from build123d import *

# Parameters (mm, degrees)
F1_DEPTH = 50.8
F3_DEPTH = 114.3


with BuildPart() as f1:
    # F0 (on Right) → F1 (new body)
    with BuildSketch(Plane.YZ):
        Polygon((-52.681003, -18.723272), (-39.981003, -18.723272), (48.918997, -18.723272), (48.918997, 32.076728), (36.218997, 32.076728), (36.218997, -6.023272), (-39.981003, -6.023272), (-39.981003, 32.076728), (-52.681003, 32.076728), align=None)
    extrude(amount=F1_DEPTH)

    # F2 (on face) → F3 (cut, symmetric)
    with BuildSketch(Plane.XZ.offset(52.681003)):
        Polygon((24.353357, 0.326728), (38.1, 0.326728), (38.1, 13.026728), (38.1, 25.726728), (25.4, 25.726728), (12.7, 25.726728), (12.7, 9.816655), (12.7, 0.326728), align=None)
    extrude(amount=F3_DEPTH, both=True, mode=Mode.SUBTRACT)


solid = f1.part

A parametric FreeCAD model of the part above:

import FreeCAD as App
import Part
import Sketcher
Q = App.Units.Quantity

doc = App.newDocument("Part")
body = doc.addObject("PartDesign::Body", "Body")

# Sketch on YZ plane
sketch1 = doc.addObject("Sketcher::SketchObject", "Sketch")
body.addObject(sketch1)
sketch1.AttachmentSupport = (doc.YZ_Plane, [""])
sketch1.MapMode = "FlatFace"
sketch1.addGeometry(Part.LineSegment(App.Vector(-53, -19, 0), App.Vector(49, -19, 0)), False)
sketch1.addGeometry(Part.LineSegment(App.Vector(49, -19, 0), App.Vector(49, 32, 0)), False)
sketch1.addGeometry(Part.LineSegment(App.Vector(49, 32, 0), App.Vector(36, 32, 0)), False)
sketch1.addGeometry(Part.LineSegment(App.Vector(36, 32, 0), App.Vector(36, -6, 0)), False)
sketch1.addGeometry(Part.LineSegment(App.Vector(36, -6, 0), App.Vector(-40, -6, 0)), False)
sketch1.addGeometry(Part.LineSegment(App.Vector(-40, -6, 0), App.Vector(-40, 32, 0)), False)
sketch1.addGeometry(Part.LineSegment(App.Vector(-40, 32, 0), App.Vector(-53, 32, 0)), False)
sketch1.addGeometry(Part.LineSegment(App.Vector(-53, 32, 0), App.Vector(-53, -19, 0)), False)
sketch1.addConstraint(Sketcher.Constraint("Coincident", 0, 2, 1, 1))
sketch1.addConstraint(Sketcher.Constraint("Coincident", 1, 2, 2, 1))
sketch1.addConstraint(Sketcher.Constraint("Coincident", 2, 2, 3, 1))
sketch1.addConstraint(Sketcher.Constraint("Coincident", 3, 2, 4, 1))
sketch1.addConstraint(Sketcher.Constraint("Coincident", 4, 2, 5, 1))
sketch1.addConstraint(Sketcher.Constraint("Coincident", 5, 2, 6, 1))
sketch1.addConstraint(Sketcher.Constraint("Coincident", 6, 2, 7, 1))
sketch1.addConstraint(Sketcher.Constraint("Coincident", 7, 2, 0, 1))
sketch1.addConstraint(Sketcher.Constraint("Horizontal", 0))
sketch1.addConstraint(Sketcher.Constraint("Vertical", 1))
sketch1.addConstraint(Sketcher.Constraint("Horizontal", 2))
sketch1.addConstraint(Sketcher.Constraint("Vertical", 3))
sketch1.addConstraint(Sketcher.Constraint("Horizontal", 4))
sketch1.addConstraint(Sketcher.Constraint("Vertical", 5))
sketch1.addConstraint(Sketcher.Constraint("Horizontal", 6))
sketch1.addConstraint(Sketcher.Constraint("Vertical", 7))
sketch1.addConstraint(Sketcher.Constraint("Horizontal", 2, 2, 5, 2))
sketch1.addConstraint(Sketcher.Constraint("Equal", 2, 6))
sketch1.addConstraint(Sketcher.Constraint("DistanceX", 0, 1, 0, 2, Q("4 in")))
sketch1.addConstraint(Sketcher.Constraint("DistanceX", 4, 2, 4, 1, Q("3 in")))
sketch1.addConstraint(Sketcher.Constraint("DistanceY", 1, 1, 1, 2, Q("2 in")))
sketch1.addConstraint(Sketcher.Constraint("DistanceY", 3, 2, 3, 1, Q("1.5 in")))
sketch1.addConstraint(Sketcher.Constraint("DistanceY", -1, 1, 1, 2, 32.076728))
sketch1.addConstraint(Sketcher.Constraint("DistanceX", -1, 1, 0, 2, 48.918997))
pad1 = doc.addObject("PartDesign::Pad", "Pad")
body.addObject(pad1)
pad1.Profile = sketch1
pad1.Length = Q("2 in")

# Sketch on XZ plane
sketch2 = doc.addObject("Sketcher::SketchObject", "Sketch001")
body.addObject(sketch2)
sketch2.AttachmentSupport = (doc.XZ_Plane, [""])
sketch2.MapMode = "FlatFace"
sketch2.AttachmentOffset = App.Placement(App.Vector(0, 0, 52.681003), App.Rotation())
sketch2.addGeometry(Part.LineSegment(App.Vector(38, 0, 0), App.Vector(38, 26, 0)), False)
sketch2.addGeometry(Part.LineSegment(App.Vector(38, 26, 0), App.Vector(13, 26, 0)), False)
sketch2.addGeometry(Part.LineSegment(App.Vector(13, 26, 0), App.Vector(13, 0, 0)), False)
sketch2.addGeometry(Part.LineSegment(App.Vector(13, 0, 0), App.Vector(38, 0, 0)), False)
sketch2.addConstraint(Sketcher.Constraint("Coincident", 0, 2, 1, 1))
sketch2.addConstraint(Sketcher.Constraint("Coincident", 1, 2, 2, 1))
sketch2.addConstraint(Sketcher.Constraint("Coincident", 2, 2, 3, 1))
sketch2.addConstraint(Sketcher.Constraint("Coincident", 3, 2, 0, 1))
sketch2.addConstraint(Sketcher.Constraint("Vertical", 0))
sketch2.addConstraint(Sketcher.Constraint("Horizontal", 1))
sketch2.addConstraint(Sketcher.Constraint("Vertical", 2))
sketch2.addConstraint(Sketcher.Constraint("Horizontal", 3))
sketch2.addConstraint(Sketcher.Constraint("Equal", 3, 0))
sketch2.addConstraint(Sketcher.Constraint("DistanceX", 1, 2, 1, 1, Q("1 in")))
sketch2.addConstraint(Sketcher.Constraint("DistanceX", -1, 1, 0, 2, Q("1.5 in")))
sketch2.addConstraint(Sketcher.Constraint("DistanceY", -1, 1, 0, 2, 25.726728))
pocket1 = doc.addObject("PartDesign::Pocket", "Pocket")
body.addObject(pocket1)
pocket1.Profile = sketch2
pocket1.Length = Q("9 in")
pocket1.Midplane = True

doc.recompute()
